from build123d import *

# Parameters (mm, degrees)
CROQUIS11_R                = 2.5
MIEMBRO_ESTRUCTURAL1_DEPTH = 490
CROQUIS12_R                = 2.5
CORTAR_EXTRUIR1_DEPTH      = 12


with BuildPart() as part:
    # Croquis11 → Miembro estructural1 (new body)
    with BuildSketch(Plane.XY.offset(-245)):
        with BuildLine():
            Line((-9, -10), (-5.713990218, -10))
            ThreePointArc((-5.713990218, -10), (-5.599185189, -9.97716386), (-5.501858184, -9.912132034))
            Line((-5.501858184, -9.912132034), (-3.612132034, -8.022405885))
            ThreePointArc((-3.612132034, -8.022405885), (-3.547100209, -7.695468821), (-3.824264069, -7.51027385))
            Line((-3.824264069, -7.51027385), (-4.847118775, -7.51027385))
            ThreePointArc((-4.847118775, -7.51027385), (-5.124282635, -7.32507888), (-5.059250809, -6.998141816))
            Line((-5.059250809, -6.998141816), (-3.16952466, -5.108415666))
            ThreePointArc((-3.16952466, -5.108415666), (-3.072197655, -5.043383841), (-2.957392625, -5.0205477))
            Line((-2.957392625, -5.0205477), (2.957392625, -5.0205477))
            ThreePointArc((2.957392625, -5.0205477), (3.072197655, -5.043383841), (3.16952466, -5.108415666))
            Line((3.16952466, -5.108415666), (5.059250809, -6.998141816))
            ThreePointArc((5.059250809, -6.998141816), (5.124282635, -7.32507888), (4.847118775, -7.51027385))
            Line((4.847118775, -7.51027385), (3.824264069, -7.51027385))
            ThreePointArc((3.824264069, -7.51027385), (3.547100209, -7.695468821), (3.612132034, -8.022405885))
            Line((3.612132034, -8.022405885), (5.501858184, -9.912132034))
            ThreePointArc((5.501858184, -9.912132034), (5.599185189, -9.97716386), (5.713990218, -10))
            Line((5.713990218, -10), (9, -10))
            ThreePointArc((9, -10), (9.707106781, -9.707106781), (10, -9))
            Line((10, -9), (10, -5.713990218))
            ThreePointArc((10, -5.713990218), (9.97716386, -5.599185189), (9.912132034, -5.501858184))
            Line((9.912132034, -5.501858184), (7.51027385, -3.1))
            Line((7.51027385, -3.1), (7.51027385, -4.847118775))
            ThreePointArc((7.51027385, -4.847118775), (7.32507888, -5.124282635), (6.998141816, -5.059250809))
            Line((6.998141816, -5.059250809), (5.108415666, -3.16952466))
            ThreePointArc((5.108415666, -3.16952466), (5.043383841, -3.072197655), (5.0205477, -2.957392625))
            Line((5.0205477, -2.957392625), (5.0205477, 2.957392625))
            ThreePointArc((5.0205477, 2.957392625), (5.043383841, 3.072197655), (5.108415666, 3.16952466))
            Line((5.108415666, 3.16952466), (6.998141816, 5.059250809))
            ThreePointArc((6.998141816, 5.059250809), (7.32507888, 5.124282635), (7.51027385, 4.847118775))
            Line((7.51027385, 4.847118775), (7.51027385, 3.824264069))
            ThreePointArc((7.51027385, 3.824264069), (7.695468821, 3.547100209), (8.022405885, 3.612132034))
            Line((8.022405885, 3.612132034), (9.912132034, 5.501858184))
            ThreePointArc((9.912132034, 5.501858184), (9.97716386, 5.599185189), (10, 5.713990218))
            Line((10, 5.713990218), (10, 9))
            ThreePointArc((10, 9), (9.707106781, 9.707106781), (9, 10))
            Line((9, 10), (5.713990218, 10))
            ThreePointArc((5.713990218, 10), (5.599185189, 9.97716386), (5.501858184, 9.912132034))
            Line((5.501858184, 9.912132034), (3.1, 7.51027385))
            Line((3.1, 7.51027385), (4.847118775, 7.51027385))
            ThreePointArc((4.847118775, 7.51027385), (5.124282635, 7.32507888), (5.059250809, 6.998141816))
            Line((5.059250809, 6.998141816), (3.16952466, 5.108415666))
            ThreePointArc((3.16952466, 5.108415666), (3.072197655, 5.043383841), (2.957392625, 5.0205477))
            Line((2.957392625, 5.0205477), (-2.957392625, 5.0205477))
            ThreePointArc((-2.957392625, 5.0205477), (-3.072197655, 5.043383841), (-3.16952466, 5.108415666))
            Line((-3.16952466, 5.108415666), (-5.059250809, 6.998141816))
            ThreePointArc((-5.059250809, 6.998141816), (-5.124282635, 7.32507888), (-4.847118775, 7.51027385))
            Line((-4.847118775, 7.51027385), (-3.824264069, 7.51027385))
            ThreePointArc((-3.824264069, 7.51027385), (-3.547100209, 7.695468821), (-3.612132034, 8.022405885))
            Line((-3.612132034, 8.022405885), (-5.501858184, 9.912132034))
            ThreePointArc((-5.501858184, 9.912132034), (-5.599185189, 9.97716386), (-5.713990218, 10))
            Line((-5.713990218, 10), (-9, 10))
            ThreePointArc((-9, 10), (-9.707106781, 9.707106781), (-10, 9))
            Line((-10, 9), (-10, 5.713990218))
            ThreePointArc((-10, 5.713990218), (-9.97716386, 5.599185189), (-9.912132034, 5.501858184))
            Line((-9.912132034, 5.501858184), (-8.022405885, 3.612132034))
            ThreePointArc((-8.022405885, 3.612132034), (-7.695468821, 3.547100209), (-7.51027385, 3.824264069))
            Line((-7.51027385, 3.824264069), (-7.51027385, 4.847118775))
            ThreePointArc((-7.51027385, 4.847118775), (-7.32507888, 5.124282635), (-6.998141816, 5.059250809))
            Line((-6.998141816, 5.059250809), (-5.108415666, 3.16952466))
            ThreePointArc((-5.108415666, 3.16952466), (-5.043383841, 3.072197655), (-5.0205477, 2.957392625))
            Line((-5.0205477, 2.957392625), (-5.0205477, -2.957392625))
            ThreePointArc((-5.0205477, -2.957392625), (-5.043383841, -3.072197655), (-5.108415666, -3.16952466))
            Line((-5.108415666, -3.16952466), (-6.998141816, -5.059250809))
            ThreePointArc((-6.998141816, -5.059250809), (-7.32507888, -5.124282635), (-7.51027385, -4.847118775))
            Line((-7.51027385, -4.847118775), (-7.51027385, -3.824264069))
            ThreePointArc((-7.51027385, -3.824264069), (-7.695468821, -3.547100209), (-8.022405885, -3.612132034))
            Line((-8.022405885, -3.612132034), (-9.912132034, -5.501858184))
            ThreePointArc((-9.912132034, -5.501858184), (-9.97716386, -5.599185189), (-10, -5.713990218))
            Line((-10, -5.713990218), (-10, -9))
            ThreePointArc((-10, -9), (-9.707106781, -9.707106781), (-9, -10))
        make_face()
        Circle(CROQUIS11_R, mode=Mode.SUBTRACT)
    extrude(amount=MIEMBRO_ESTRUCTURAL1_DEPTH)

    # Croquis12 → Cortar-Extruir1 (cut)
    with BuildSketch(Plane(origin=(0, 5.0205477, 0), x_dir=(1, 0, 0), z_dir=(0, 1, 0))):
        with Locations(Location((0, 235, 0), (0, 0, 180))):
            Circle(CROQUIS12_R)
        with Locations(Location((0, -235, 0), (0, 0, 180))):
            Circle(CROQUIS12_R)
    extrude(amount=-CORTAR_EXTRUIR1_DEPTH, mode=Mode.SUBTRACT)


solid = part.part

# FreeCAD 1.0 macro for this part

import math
import FreeCAD as App
import Part
import Sketcher

doc = App.newDocument("Part")
body = doc.addObject("PartDesign::Body", "Body")

# Sketch on XY plane
sketch1 = doc.addObject("Sketcher::SketchObject", "Sketch")
body.addObject(sketch1)
sketch1.AttachmentSupport = (doc.XY_Plane, [""])
sketch1.MapMode = "FlatFace"
sketch1.AttachmentOffset = App.Placement(App.Vector(0, 0, -245), App.Rotation())
sketch1.addGeometry([
    Part.LineSegment(App.Vector(-9, -10, 0), App.Vector(-5.71, -10, 0)),  # 0
    Part.ArcOfCircle(Part.Circle(App.Vector(-5.71, -9.7, 0), App.Vector(0, 0, 1), 0.3), math.radians(-90), math.radians(-45)),  # 1
    Part.LineSegment(App.Vector(-5.5, -9.91, 0), App.Vector(-3.61, -8.02, 0)),  # 2
    Part.ArcOfCircle(Part.Circle(App.Vector(-3.82, -7.81, 0), App.Vector(0, 0, 1), 0.3), math.radians(-45), math.radians(90)),  # 3
    Part.LineSegment(App.Vector(-3.82, -7.51, 0), App.Vector(-4.85, -7.51, 0)),  # 4
    Part.ArcOfCircle(Part.Circle(App.Vector(-4.85, -7.21, 0), App.Vector(0, 0, 1), 0.3), math.radians(135), math.radians(270)),  # 5
    Part.LineSegment(App.Vector(-5.06, -7, 0), App.Vector(-3.17, -5.11, 0)),  # 6
    Part.ArcOfCircle(Part.Circle(App.Vector(-2.96, -5.32, 0), App.Vector(0, 0, 1), 0.3), math.radians(90), math.radians(135)),  # 7
    Part.LineSegment(App.Vector(-2.96, -5.02, 0), App.Vector(2.96, -5.02, 0)),  # 8
    Part.ArcOfCircle(Part.Circle(App.Vector(2.96, -5.32, 0), App.Vector(0, 0, 1), 0.3), math.radians(45), math.radians(90)),  # 9
    Part.LineSegment(App.Vector(3.17, -5.11, 0), App.Vector(5.06, -7, 0)),  # 10
    Part.ArcOfCircle(Part.Circle(App.Vector(4.85, -7.21, 0), App.Vector(0, 0, 1), 0.3), math.radians(-90), math.radians(45)),  # 11
    Part.LineSegment(App.Vector(4.85, -7.51, 0), App.Vector(3.82, -7.51, 0)),  # 12
    Part.ArcOfCircle(Part.Circle(App.Vector(3.82, -7.81, 0), App.Vector(0, 0, 1), 0.3), math.radians(90), math.radians(225)),  # 13
    Part.LineSegment(App.Vector(3.61, -8.02, 0), App.Vector(5.5, -9.91, 0)),  # 14
    Part.ArcOfCircle(Part.Circle(App.Vector(5.71, -9.7, 0), App.Vector(0, 0, 1), 0.3), math.radians(-135), math.radians(-90)),  # 15
    Part.LineSegment(App.Vector(5.71, -10, 0), App.Vector(9, -10, 0)),  # 16
    Part.ArcOfCircle(Part.Circle(App.Vector(9, -9, 0), App.Vector(0, 0, 1), 1), math.radians(-90), math.radians(0)),  # 17
    Part.LineSegment(App.Vector(10, -9, 0), App.Vector(10, -5.71, 0)),  # 18
    Part.ArcOfCircle(Part.Circle(App.Vector(9.7, -5.71, 0), App.Vector(0, 0, 1), 0.3), math.radians(0), math.radians(45)),  # 19
    Part.LineSegment(App.Vector(9.91, -5.5, 0), App.Vector(7.51, -3.1, 0)),  # 20
    Part.LineSegment(App.Vector(7.51, -3.1, 0), App.Vector(7.51, -4.85, 0)),  # 21
    Part.ArcOfCircle(Part.Circle(App.Vector(7.21, -4.85, 0), App.Vector(0, 0, 1), 0.3), math.radians(-135), math.radians(0)),  # 22
    Part.LineSegment(App.Vector(7, -5.06, 0), App.Vector(5.11, -3.17, 0)),  # 23
    Part.ArcOfCircle(Part.Circle(App.Vector(5.32, -2.96, 0), App.Vector(0, 0, 1), 0.3), math.radians(-180), math.radians(-135)),  # 24
    Part.LineSegment(App.Vector(5.02, -2.96, 0), App.Vector(5.02, 2.96, 0)),  # 25
    Part.ArcOfCircle(Part.Circle(App.Vector(5.32, 2.96, 0), App.Vector(0, 0, 1), 0.3), math.radians(135), math.radians(180)),  # 26
    Part.LineSegment(App.Vector(5.11, 3.17, 0), App.Vector(7, 5.06, 0)),  # 27
    Part.ArcOfCircle(Part.Circle(App.Vector(7.21, 4.85, 0), App.Vector(0, 0, 1), 0.3), math.radians(0), math.radians(135)),  # 28
    Part.LineSegment(App.Vector(7.51, 4.85, 0), App.Vector(7.51, 3.82, 0)),  # 29
    Part.ArcOfCircle(Part.Circle(App.Vector(7.81, 3.82, 0), App.Vector(0, 0, 1), 0.3), math.radians(-180), math.radians(-45)),  # 30
    Part.LineSegment(App.Vector(8.02, 3.61, 0), App.Vector(9.91, 5.5, 0)),  # 31
    Part.ArcOfCircle(Part.Circle(App.Vector(9.7, 5.71, 0), App.Vector(0, 0, 1), 0.3), math.radians(-45), math.radians(0)),  # 32
    Part.LineSegment(App.Vector(10, 5.71, 0), App.Vector(10, 9, 0)),  # 33
    Part.ArcOfCircle(Part.Circle(App.Vector(9, 9, 0), App.Vector(0, 0, 1), 1), math.radians(0), math.radians(90)),  # 34
    Part.LineSegment(App.Vector(9, 10, 0), App.Vector(5.71, 10, 0)),  # 35
    Part.ArcOfCircle(Part.Circle(App.Vector(5.71, 9.7, 0), App.Vector(0, 0, 1), 0.3), math.radians(90), math.radians(135)),  # 36
    Part.LineSegment(App.Vector(5.5, 9.91, 0), App.Vector(3.1, 7.51, 0)),  # 37
    Part.LineSegment(App.Vector(3.1, 7.51, 0), App.Vector(4.85, 7.51, 0)),  # 38
    Part.ArcOfCircle(Part.Circle(App.Vector(4.85, 7.21, 0), App.Vector(0, 0, 1), 0.3), math.radians(-45), math.radians(90)),  # 39
    Part.LineSegment(App.Vector(5.06, 7, 0), App.Vector(3.17, 5.11, 0)),  # 40
    Part.ArcOfCircle(Part.Circle(App.Vector(2.96, 5.32, 0), App.Vector(0, 0, 1), 0.3), math.radians(-90), math.radians(-45)),  # 41
    Part.LineSegment(App.Vector(2.96, 5.02, 0), App.Vector(-2.96, 5.02, 0)),  # 42
    Part.ArcOfCircle(Part.Circle(App.Vector(-2.96, 5.32, 0), App.Vector(0, 0, 1), 0.3), math.radians(-135), math.radians(-90)),  # 43
    Part.LineSegment(App.Vector(-3.17, 5.11, 0), App.Vector(-5.06, 7, 0)),  # 44
    Part.ArcOfCircle(Part.Circle(App.Vector(-4.85, 7.21, 0), App.Vector(0, 0, 1), 0.3), math.radians(90), math.radians(225)),  # 45
    Part.LineSegment(App.Vector(-4.85, 7.51, 0), App.Vector(-3.82, 7.51, 0)),  # 46
    Part.ArcOfCircle(Part.Circle(App.Vector(-3.82, 7.81, 0), App.Vector(0, 0, 1), 0.3), math.radians(-90), math.radians(45)),  # 47
    Part.LineSegment(App.Vector(-3.61, 8.02, 0), App.Vector(-5.5, 9.91, 0)),  # 48
    Part.ArcOfCircle(Part.Circle(App.Vector(-5.71, 9.7, 0), App.Vector(0, 0, 1), 0.3), math.radians(45), math.radians(90)),  # 49
    Part.LineSegment(App.Vector(-5.71, 10, 0), App.Vector(-9, 10, 0)),  # 50
    Part.ArcOfCircle(Part.Circle(App.Vector(-9, 9, 0), App.Vector(0, 0, 1), 1), math.radians(90), math.radians(180)),  # 51
    Part.LineSegment(App.Vector(-10, 9, 0), App.Vector(-10, 5.71, 0)),  # 52
    Part.ArcOfCircle(Part.Circle(App.Vector(-9.7, 5.71, 0), App.Vector(0, 0, 1), 0.3), math.radians(180), math.radians(225)),  # 53
    Part.LineSegment(App.Vector(-9.91, 5.5, 0), App.Vector(-8.02, 3.61, 0)),  # 54
    Part.ArcOfCircle(Part.Circle(App.Vector(-7.81, 3.82, 0), App.Vector(0, 0, 1), 0.3), math.radians(-135), math.radians(0)),  # 55
    Part.LineSegment(App.Vector(-7.51, 3.82, 0), App.Vector(-7.51, 4.85, 0)),  # 56
    Part.ArcOfCircle(Part.Circle(App.Vector(-7.21, 4.85, 0), App.Vector(0, 0, 1), 0.3), math.radians(45), math.radians(180)),  # 57
    Part.LineSegment(App.Vector(-7, 5.06, 0), App.Vector(-5.11, 3.17, 0)),  # 58
    Part.ArcOfCircle(Part.Circle(App.Vector(-5.32, 2.96, 0), App.Vector(0, 0, 1), 0.3), math.radians(0), math.radians(45)),  # 59
    Part.LineSegment(App.Vector(-5.02, 2.96, 0), App.Vector(-5.02, -2.96, 0)),  # 60
    Part.ArcOfCircle(Part.Circle(App.Vector(-5.32, -2.96, 0), App.Vector(0, 0, 1), 0.3), math.radians(-45), math.radians(0)),  # 61
    Part.LineSegment(App.Vector(-5.11, -3.17, 0), App.Vector(-7, -5.06, 0)),  # 62
    Part.ArcOfCircle(Part.Circle(App.Vector(-7.21, -4.85, 0), App.Vector(0, 0, 1), 0.3), math.radians(180), math.radians(315)),  # 63
    Part.LineSegment(App.Vector(-7.51, -4.85, 0), App.Vector(-7.51, -3.82, 0)),  # 64
    Part.ArcOfCircle(Part.Circle(App.Vector(-7.81, -3.82, 0), App.Vector(0, 0, 1), 0.3), math.radians(0), math.radians(135)),  # 65
    Part.LineSegment(App.Vector(-8.02, -3.61, 0), App.Vector(-9.91, -5.5, 0)),  # 66
    Part.ArcOfCircle(Part.Circle(App.Vector(-9.7, -5.71, 0), App.Vector(0, 0, 1), 0.3), math.radians(135), math.radians(180)),  # 67
    Part.LineSegment(App.Vector(-10, -5.71, 0), App.Vector(-10, -9, 0)),  # 68
    Part.ArcOfCircle(Part.Circle(App.Vector(-9, -9, 0), App.Vector(0, 0, 1), 1), math.radians(-180), math.radians(-90)),  # 69
    Part.Circle(App.Vector(0, 0, 0), App.Vector(0, 0, 1), 2.5),  # 70
], False)
sketch1.addConstraint([
    Sketcher.Constraint("Tangent", 0, 2, 1, 1),
    Sketcher.Constraint("Tangent", 1, 2, 2, 1),
    Sketcher.Constraint("Tangent", 2, 2, 3, 1),
    Sketcher.Constraint("Tangent", 3, 2, 4, 1),
    Sketcher.Constraint("Tangent", 4, 2, 5, 2),
    Sketcher.Constraint("Tangent", 5, 1, 6, 1),
    Sketcher.Constraint("Tangent", 6, 2, 7, 2),
    Sketcher.Constraint("Tangent", 7, 1, 8, 1),
    Sketcher.Constraint("Tangent", 8, 2, 9, 2),
    Sketcher.Constraint("Tangent", 9, 1, 10, 1),
    Sketcher.Constraint("Tangent", 10, 2, 11, 2),
    Sketcher.Constraint("Tangent", 11, 1, 12, 1),
    Sketcher.Constraint("Tangent", 12, 2, 13, 1),
    Sketcher.Constraint("Tangent", 13, 2, 14, 1),
    Sketcher.Constraint("Tangent", 14, 2, 15, 1),
    Sketcher.Constraint("Tangent", 15, 2, 16, 1),
    Sketcher.Constraint("Tangent", 16, 2, 17, 1),
    Sketcher.Constraint("Tangent", 17, 2, 18, 1),
    Sketcher.Constraint("Tangent", 18, 2, 19, 1),
    Sketcher.Constraint("Tangent", 19, 2, 20, 1),
    Sketcher.Constraint("Coincident", 20, 2, 21, 1),
    Sketcher.Constraint("Tangent", 21, 2, 22, 2),
    Sketcher.Constraint("Tangent", 22, 1, 23, 1),
    Sketcher.Constraint("Tangent", 23, 2, 24, 2),
    Sketcher.Constraint("Tangent", 24, 1, 25, 1),
    Sketcher.Constraint("Tangent", 25, 2, 26, 2),
    Sketcher.Constraint("Tangent", 26, 1, 27, 1),
    Sketcher.Constraint("Tangent", 27, 2, 28, 2),
    Sketcher.Constraint("Tangent", 28, 1, 29, 1),
    Sketcher.Constraint("Tangent", 29, 2, 30, 1),
    Sketcher.Constraint("Tangent", 30, 2, 31, 1),
    Sketcher.Constraint("Tangent", 31, 2, 32, 1),
    Sketcher.Constraint("Tangent", 32, 2, 33, 1),
    Sketcher.Constraint("Tangent", 33, 2, 34, 1),
    Sketcher.Constraint("Tangent", 34, 2, 35, 1),
    Sketcher.Constraint("Tangent", 35, 2, 36, 1),
    Sketcher.Constraint("Tangent", 36, 2, 37, 1),
    Sketcher.Constraint("Coincident", 37, 2, 38, 1),
    Sketcher.Constraint("Tangent", 38, 2, 39, 2),
    Sketcher.Constraint("Tangent", 39, 1, 40, 1),
    Sketcher.Constraint("Tangent", 40, 2, 41, 2),
    Sketcher.Constraint("Tangent", 41, 1, 42, 1),
    Sketcher.Constraint("Tangent", 42, 2, 43, 2),
    Sketcher.Constraint("Tangent", 43, 1, 44, 1),
    Sketcher.Constraint("Tangent", 44, 2, 45, 2),
    Sketcher.Constraint("Tangent", 45, 1, 46, 1),
    Sketcher.Constraint("Tangent", 46, 2, 47, 1),
    Sketcher.Constraint("Tangent", 47, 2, 48, 1),
    Sketcher.Constraint("Tangent", 48, 2, 49, 1),
    Sketcher.Constraint("Tangent", 49, 2, 50, 1),
    Sketcher.Constraint("Tangent", 50, 2, 51, 1),
    Sketcher.Constraint("Tangent", 51, 2, 52, 1),
    Sketcher.Constraint("Tangent", 52, 2, 53, 1),
    Sketcher.Constraint("Tangent", 53, 2, 54, 1),
    Sketcher.Constraint("Tangent", 54, 2, 55, 1),
    Sketcher.Constraint("Tangent", 55, 2, 56, 1),
    Sketcher.Constraint("Tangent", 56, 2, 57, 2),
    Sketcher.Constraint("Tangent", 57, 1, 58, 1),
    Sketcher.Constraint("Tangent", 58, 2, 59, 2),
    Sketcher.Constraint("Tangent", 59, 1, 60, 1),
    Sketcher.Constraint("Tangent", 60, 2, 61, 2),
    Sketcher.Constraint("Tangent", 61, 1, 62, 1),
    Sketcher.Constraint("Tangent", 62, 2, 63, 2),
    Sketcher.Constraint("Tangent", 63, 1, 64, 1),
    Sketcher.Constraint("Tangent", 64, 2, 65, 1),
    Sketcher.Constraint("Tangent", 65, 2, 66, 1),
    Sketcher.Constraint("Tangent", 66, 2, 67, 1),
    Sketcher.Constraint("Tangent", 67, 2, 68, 1),
    Sketcher.Constraint("Tangent", 68, 2, 69, 1),
    Sketcher.Constraint("Tangent", 69, 2, 0, 1),
    Sketcher.Constraint("Horizontal", 0),
    Sketcher.Constraint("Horizontal", 4),
    Sketcher.Constraint("Horizontal", 8),
    Sketcher.Constraint("Horizontal", 12),
    Sketcher.Constraint("Horizontal", 16),
    Sketcher.Constraint("Vertical", 18),
    Sketcher.Constraint("Vertical", 21),
    Sketcher.Constraint("Vertical", 25),
    Sketcher.Constraint("Vertical", 29),
    Sketcher.Constraint("Vertical", 33),
    Sketcher.Constraint("Horizontal", 35),
    Sketcher.Constraint("Horizontal", 38),
    Sketcher.Constraint("Horizontal", 42),
    Sketcher.Constraint("Horizontal", 46),
    Sketcher.Constraint("Horizontal", 50),
    Sketcher.Constraint("Vertical", 52),
    Sketcher.Constraint("Vertical", 56),
    Sketcher.Constraint("Vertical", 60),
    Sketcher.Constraint("Vertical", 64),
    Sketcher.Constraint("Vertical", 68),
    Sketcher.Constraint("Coincident", 70, 3, -1, 1),
    Sketcher.Constraint("Equal", 1, 3),
    Sketcher.Constraint("Equal", 3, 5),
    Sketcher.Constraint("Equal", 5, 7),
    Sketcher.Constraint("Equal", 7, 9),
    Sketcher.Constraint("Equal", 9, 11),
    Sketcher.Constraint("Equal", 11, 13),
    Sketcher.Constraint("Equal", 13, 15),
    Sketcher.Constraint("Equal", 15, 19),
    Sketcher.Constraint("Equal", 19, 22),
    Sketcher.Constraint("Equal", 22, 24),
    Sketcher.Constraint("Equal", 24, 26),
    Sketcher.Constraint("Equal", 26, 28),
    Sketcher.Constraint("Equal", 28, 30),
    Sketcher.Constraint("Equal", 30, 32),
    Sketcher.Constraint("Equal", 17, 34),
    Sketcher.Constraint("Equal", 32, 36),
    Sketcher.Constraint("Equal", 36, 39),
    Sketcher.Constraint("Equal", 39, 41),
    Sketcher.Constraint("Equal", 41, 43),
    Sketcher.Constraint("Equal", 43, 45),
    Sketcher.Constraint("Equal", 45, 47),
    Sketcher.Constraint("Equal", 47, 49),
    Sketcher.Constraint("Equal", 34, 51),
    Sketcher.Constraint("Equal", 49, 53),
    Sketcher.Constraint("Equal", 53, 55),
    Sketcher.Constraint("Equal", 55, 57),
    Sketcher.Constraint("Equal", 57, 59),
    Sketcher.Constraint("Equal", 59, 61),
    Sketcher.Constraint("Equal", 61, 63),
    Sketcher.Constraint("Equal", 63, 65),
    Sketcher.Constraint("Equal", 65, 67),
    Sketcher.Constraint("Equal", 51, 69),
    Sketcher.Constraint("Symmetric", 1, 3, 36, 3, -1, 1),
    Sketcher.Constraint("Symmetric", 5, 3, 39, 3, -1, 1),
    Sketcher.Constraint("Symmetric", 7, 3, 41, 3, -1, 1),
    Sketcher.Constraint("Symmetric", 11, 3, 45, 3, -1, 1),
    Sketcher.Constraint("Symmetric", 15, 3, 49, 3, -1, 1),
    Sketcher.Constraint("Symmetric", 19, 3, 53, 3, -1, 1),
    Sketcher.Constraint("Symmetric", 22, 3, 57, 3, -1, 1),
    Sketcher.Constraint("Symmetric", 24, 3, 59, 3, -1, 1),
    Sketcher.Constraint("Symmetric", 28, 3, 63, 3, -1, 1),
    Sketcher.Constraint("Symmetric", 32, 3, 67, 3, -1, 1),
    Sketcher.Constraint("Symmetric", 5, 3, 11, 3, -2),
    Sketcher.Constraint("Symmetric", 1, 3, 15, 3, -2),
    Sketcher.Constraint("Symmetric", 32, 3, 53, 3, -2),
    Sketcher.Constraint("Symmetric", 30, 3, 55, 3, -2),
    Sketcher.Constraint("Symmetric", 27, 2, 57, 1, -2),
    Sketcher.Constraint("Parallel", 2, 6),
    Sketcher.Constraint("Perpendicular", 6, 10),
    Sketcher.Constraint("Parallel", 10, 14),
    Sketcher.Constraint("Parallel", 14, 20),
    Sketcher.Constraint("Parallel", 20, 23),
    Sketcher.Constraint("Perpendicular", 23, 27),
    Sketcher.Constraint("Parallel", 27, 31),
    Sketcher.Constraint("Parallel", 31, 37),
    Sketcher.Constraint("Perpendicular", 40, 44),
    Sketcher.Constraint("Parallel", 44, 48),
    Sketcher.Constraint("Perpendicular", 58, 62),
    Sketcher.Constraint("Parallel", 62, 66),
    Sketcher.Constraint("Equal", 50, 18),
    Sketcher.Constraint("Equal", 38, 21),
    Sketcher.Constraint("Equal", 42, 25),
    Sketcher.Constraint("Equal", 2, 6),
    Sketcher.Constraint("Equal", 14, 23),
    Sketcher.Constraint("Equal", 27, 31),
    Sketcher.Constraint("Diameter", 70, 5.0),
    Sketcher.Constraint("Radius", 17, 1.0),
    Sketcher.Constraint("Radius", 1, 0.3),
    Sketcher.Constraint("DistanceX", -1, 1, 17, 3, 9.0),
    Sketcher.Constraint("DistanceY", 20, 2, -1, 1, 3.1),
    Sketcher.Constraint("DistanceX", 0, 1, 0, 2, 3.28601),
    Sketcher.Constraint("DistanceX", 38, 1, 38, 2, 1.747119),
])
pad1 = doc.addObject("PartDesign::Pad", "Pad")
body.addObject(pad1)
pad1.Profile = sketch1
pad1.Length = 490

# Sketch on XZ plane
sketch2 = doc.addObject("Sketcher::SketchObject", "Sketch001")
body.addObject(sketch2)
sketch2.AttachmentSupport = (doc.XZ_Plane, [""])
sketch2.MapMode = "FlatFace"
sketch2.AttachmentOffset = App.Placement(App.Vector(0, 0, -5.020548), App.Rotation())
sketch2.addGeometry([
    Part.Circle(App.Vector(0, -235, 0), App.Vector(0, 0, 1), 2.5),
    Part.Circle(App.Vector(0, 235, 0), App.Vector(0, 0, 1), 2.5),
], False)
sketch2.addConstraint([
    Sketcher.Constraint("Equal", 0, 1),
    Sketcher.Constraint("Symmetric", 0, 3, 1, 3, -1, 1),
    Sketcher.Constraint("PointOnObject", 0, 3, -2),
    Sketcher.Constraint("Diameter", 0, 5.0),
    Sketcher.Constraint("DistanceY", 0, 3, -1, 1, 235.0),
])
pocket1 = doc.addObject("PartDesign::Pocket", "Pocket")
body.addObject(pocket1)
pocket1.Profile = sketch2
pocket1.Length = 12
pocket1.Reversed = True

doc.recompute()
